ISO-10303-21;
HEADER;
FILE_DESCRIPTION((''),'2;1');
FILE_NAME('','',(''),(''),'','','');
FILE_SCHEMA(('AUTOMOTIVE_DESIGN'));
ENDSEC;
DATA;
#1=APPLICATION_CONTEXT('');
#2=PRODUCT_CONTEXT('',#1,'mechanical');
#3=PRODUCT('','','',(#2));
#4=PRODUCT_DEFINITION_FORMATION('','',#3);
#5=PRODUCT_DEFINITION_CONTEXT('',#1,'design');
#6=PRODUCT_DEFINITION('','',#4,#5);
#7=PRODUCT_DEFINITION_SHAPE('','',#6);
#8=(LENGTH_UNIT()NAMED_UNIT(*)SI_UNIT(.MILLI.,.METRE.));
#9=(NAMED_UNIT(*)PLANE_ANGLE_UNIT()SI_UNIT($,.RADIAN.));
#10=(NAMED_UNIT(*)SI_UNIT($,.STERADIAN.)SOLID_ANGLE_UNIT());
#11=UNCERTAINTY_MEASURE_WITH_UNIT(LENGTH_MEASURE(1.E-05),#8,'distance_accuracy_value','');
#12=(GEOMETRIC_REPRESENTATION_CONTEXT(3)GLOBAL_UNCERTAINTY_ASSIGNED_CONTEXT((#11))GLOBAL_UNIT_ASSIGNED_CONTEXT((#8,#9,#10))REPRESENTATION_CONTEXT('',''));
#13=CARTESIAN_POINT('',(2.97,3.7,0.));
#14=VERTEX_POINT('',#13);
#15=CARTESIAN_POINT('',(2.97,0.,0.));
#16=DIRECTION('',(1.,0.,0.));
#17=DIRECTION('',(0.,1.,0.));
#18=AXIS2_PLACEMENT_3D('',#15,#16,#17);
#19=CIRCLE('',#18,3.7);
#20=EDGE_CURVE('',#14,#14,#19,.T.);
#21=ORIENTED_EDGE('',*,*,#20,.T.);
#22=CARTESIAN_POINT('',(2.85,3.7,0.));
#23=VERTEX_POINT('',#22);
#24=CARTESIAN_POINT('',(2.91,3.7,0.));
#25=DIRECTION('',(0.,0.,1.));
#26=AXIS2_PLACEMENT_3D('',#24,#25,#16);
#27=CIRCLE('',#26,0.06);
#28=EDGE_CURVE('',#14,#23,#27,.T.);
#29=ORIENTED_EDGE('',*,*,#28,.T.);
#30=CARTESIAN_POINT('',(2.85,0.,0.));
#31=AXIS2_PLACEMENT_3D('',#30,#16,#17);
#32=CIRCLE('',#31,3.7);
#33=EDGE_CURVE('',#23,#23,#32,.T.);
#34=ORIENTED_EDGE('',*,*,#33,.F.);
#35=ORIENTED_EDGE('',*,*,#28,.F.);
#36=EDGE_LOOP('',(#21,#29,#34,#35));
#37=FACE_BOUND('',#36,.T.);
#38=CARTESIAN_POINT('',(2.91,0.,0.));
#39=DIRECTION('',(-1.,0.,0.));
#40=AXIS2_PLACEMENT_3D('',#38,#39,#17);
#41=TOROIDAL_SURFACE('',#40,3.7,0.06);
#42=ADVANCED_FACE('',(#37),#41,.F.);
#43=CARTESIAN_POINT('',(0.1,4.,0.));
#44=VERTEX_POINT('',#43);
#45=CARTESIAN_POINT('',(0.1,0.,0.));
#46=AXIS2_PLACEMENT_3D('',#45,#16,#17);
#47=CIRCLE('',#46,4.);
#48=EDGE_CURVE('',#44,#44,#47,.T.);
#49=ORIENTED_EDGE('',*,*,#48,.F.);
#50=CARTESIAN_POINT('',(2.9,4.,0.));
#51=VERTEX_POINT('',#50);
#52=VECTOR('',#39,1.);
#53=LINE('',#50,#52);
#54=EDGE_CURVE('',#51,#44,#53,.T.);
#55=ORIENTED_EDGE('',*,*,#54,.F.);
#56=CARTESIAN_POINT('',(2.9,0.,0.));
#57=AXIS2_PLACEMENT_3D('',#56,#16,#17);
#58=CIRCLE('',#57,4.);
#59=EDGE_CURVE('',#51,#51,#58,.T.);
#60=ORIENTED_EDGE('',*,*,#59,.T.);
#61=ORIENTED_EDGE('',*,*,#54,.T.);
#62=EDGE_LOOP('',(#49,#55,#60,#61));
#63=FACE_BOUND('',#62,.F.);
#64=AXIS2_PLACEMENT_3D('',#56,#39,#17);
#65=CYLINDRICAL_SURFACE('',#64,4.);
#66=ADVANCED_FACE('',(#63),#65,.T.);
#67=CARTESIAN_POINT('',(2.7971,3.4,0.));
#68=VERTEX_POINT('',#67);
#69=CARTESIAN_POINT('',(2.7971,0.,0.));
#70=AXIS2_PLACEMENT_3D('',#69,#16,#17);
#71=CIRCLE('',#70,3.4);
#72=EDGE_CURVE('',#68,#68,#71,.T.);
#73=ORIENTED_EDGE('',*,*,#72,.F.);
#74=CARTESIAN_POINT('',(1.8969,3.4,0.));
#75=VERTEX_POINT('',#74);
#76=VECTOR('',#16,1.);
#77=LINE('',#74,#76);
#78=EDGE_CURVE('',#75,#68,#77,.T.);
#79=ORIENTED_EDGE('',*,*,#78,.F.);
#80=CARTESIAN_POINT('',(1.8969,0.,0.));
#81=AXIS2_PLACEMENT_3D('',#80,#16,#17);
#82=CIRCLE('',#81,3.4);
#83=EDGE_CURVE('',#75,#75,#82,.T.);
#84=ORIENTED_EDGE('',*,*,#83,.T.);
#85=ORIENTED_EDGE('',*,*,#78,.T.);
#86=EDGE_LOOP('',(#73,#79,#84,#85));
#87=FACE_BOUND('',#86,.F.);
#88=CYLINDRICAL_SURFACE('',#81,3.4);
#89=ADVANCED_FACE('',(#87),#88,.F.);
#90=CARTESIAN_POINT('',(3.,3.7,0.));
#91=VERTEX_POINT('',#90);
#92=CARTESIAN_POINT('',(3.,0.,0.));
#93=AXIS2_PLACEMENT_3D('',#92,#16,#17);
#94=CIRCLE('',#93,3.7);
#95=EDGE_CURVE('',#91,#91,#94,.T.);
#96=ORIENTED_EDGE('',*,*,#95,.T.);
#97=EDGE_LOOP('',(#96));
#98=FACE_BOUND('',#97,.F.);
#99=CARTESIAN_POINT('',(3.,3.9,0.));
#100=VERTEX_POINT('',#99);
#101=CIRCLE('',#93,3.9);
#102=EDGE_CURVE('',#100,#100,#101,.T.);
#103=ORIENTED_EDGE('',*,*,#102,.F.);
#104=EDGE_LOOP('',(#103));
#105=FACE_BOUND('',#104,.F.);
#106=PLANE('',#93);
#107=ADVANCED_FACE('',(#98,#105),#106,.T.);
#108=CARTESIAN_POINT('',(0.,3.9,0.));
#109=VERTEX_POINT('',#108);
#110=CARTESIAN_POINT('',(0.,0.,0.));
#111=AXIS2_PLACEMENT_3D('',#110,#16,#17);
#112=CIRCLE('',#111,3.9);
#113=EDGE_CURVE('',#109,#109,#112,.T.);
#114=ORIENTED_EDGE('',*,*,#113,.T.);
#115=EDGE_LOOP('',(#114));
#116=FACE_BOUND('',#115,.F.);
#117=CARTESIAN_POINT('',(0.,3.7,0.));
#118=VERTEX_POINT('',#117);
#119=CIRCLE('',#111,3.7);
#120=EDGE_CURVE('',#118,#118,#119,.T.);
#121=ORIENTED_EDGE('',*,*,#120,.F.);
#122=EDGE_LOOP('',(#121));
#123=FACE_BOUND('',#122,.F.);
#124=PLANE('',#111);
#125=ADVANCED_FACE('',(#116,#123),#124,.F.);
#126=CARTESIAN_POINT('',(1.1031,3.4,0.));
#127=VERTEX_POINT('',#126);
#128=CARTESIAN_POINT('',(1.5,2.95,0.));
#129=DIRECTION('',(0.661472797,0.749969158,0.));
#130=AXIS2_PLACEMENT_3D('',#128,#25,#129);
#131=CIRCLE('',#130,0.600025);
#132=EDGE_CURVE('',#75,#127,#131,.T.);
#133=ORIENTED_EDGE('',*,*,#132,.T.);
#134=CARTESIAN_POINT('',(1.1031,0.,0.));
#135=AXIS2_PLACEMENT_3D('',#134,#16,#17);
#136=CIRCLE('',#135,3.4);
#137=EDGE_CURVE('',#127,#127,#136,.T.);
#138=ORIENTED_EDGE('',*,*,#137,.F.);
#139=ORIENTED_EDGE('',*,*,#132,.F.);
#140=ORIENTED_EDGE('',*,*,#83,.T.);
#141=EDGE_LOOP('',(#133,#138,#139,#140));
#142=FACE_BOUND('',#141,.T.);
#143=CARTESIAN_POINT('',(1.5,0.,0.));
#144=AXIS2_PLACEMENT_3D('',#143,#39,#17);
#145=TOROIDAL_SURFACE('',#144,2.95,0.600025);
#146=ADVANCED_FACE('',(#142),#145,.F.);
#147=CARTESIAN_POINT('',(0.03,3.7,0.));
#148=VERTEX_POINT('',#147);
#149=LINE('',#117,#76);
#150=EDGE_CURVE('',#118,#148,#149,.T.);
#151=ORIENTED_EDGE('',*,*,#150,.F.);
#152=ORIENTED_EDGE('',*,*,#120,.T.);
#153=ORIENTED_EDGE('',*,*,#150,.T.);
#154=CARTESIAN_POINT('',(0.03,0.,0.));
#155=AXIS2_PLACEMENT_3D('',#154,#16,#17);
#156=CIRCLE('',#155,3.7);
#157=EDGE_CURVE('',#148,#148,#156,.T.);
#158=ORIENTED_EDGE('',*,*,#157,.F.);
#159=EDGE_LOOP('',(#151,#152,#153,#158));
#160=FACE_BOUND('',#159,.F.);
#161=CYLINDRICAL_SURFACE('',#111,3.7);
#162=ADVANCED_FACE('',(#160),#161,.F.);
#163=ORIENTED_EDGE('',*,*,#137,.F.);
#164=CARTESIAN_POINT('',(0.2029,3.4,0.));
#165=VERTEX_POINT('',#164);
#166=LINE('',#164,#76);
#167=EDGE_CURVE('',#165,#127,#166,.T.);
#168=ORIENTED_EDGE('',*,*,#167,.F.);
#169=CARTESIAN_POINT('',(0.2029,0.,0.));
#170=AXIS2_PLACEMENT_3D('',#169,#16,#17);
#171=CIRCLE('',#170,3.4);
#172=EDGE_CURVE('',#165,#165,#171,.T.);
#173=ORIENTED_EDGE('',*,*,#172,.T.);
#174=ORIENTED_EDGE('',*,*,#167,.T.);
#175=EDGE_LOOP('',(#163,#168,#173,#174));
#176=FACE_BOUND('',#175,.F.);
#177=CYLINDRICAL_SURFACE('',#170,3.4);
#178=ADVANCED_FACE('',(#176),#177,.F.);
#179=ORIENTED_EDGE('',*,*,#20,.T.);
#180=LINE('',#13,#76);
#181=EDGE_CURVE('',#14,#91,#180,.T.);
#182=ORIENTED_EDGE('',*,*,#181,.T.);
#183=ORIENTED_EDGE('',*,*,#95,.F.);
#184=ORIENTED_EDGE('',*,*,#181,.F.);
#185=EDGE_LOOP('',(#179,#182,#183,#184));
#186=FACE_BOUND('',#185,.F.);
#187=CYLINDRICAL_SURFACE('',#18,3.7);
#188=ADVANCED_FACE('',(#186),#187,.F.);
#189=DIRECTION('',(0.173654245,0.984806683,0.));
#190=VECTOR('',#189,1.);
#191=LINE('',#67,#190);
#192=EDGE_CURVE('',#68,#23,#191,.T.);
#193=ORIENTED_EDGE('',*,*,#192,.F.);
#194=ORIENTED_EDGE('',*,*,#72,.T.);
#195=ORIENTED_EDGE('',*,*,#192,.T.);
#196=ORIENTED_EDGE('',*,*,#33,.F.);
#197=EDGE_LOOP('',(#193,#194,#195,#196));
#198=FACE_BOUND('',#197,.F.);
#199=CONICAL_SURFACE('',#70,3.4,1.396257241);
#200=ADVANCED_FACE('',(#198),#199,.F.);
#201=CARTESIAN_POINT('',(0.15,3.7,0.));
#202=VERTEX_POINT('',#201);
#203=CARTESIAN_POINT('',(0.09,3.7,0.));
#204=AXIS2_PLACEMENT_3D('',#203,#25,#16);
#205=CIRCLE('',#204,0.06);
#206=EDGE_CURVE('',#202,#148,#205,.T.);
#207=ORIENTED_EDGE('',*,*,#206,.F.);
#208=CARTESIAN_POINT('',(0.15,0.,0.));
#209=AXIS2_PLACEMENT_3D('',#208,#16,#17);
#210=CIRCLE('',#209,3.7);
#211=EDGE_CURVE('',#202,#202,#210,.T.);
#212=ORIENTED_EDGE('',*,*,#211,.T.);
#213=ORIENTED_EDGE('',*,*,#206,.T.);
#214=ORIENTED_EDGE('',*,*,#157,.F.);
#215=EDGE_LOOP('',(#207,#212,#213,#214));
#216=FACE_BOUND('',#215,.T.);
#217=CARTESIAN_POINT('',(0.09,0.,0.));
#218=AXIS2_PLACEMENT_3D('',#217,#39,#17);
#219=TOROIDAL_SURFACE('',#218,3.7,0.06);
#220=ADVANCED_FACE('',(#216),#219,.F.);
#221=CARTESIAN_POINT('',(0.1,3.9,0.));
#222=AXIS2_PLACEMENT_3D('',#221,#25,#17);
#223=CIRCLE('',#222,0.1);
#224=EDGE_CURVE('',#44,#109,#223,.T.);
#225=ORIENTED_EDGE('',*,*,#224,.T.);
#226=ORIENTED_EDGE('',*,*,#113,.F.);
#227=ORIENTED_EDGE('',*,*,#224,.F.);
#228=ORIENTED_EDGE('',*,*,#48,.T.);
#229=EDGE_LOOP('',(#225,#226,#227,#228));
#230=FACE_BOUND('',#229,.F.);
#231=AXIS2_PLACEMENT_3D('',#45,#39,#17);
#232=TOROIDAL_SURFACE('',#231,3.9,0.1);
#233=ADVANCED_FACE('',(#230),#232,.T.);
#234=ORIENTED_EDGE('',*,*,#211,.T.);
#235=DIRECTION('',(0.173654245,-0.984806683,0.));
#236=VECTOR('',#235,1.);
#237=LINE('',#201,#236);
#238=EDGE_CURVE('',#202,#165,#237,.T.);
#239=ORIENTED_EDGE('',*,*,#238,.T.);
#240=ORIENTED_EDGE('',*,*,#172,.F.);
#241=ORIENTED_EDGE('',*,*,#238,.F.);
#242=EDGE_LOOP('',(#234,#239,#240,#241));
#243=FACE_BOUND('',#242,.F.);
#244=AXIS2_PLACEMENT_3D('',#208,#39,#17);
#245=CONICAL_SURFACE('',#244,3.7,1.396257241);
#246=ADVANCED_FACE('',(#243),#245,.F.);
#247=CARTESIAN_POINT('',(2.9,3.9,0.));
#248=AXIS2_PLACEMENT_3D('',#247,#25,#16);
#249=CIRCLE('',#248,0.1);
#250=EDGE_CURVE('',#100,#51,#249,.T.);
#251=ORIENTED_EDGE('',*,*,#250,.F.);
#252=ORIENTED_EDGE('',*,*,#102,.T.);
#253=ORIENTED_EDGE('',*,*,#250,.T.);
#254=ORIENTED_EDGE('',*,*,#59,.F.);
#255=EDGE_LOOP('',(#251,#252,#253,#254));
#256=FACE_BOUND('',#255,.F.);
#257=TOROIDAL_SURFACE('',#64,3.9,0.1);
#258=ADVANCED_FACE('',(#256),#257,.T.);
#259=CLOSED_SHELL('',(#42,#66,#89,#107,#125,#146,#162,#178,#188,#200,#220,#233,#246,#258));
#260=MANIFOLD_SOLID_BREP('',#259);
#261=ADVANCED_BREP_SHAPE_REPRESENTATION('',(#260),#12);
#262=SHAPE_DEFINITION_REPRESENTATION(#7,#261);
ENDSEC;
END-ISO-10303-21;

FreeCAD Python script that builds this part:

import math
import FreeCAD as App
import Part
import Sketcher

V = App.Vector
Q = App.Units.Quantity

doc = App.newDocument("Part")
body = doc.addObject("PartDesign::Body", "Body")

# Sketch on XY plane
sketch1 = body.newObject("Sketcher::SketchObject", "Sketch")
sketch1.AttachmentSupport = (doc.getObject("XY_Plane"), [""])
sketch1.MapMode = "FlatFace"
sketch1.addGeometry([
    Part.ArcOfCircle(Part.Circle(V(0.1, 3.9, 0), V(0, 0, 1), 0.1), math.radians(90), math.radians(180)),  # 0
    Part.LineSegment(V(0, 3.9, 0), V(0, 3.7, 0)),  # 1
    Part.LineSegment(V(0, 3.7, 0), V(0.03, 3.7, 0)),  # 2
    Part.ArcOfCircle(Part.Circle(V(0.09, 3.7, 0), V(0, 0, 1), 0.06), math.radians(0), math.radians(180)),  # 3
    Part.LineSegment(V(0.15, 3.7, 0), V(0.203, 3.4, 0)),  # 4
    Part.LineSegment(V(0.203, 3.4, 0), V(1.103, 3.4, 0)),  # 5
    Part.ArcOfCircle(Part.Circle(V(1.5, 2.95, 0), V(0, 0, 1), 0.6), math.radians(49), math.radians(131)),  # 6
    Part.LineSegment(V(1.897, 3.4, 0), V(2.797, 3.4, 0)),  # 7
    Part.LineSegment(V(2.797, 3.4, 0), V(2.85, 3.7, 0)),  # 8
    Part.ArcOfCircle(Part.Circle(V(2.91, 3.7, 0), V(0, 0, 1), 0.06), math.radians(0), math.radians(180)),  # 9
    Part.LineSegment(V(2.97, 3.7, 0), V(3, 3.7, 0)),  # 10
    Part.LineSegment(V(3, 3.7, 0), V(3, 3.9, 0)),  # 11
    Part.ArcOfCircle(Part.Circle(V(2.9, 3.9, 0), V(0, 0, 1), 0.1), math.radians(0), math.radians(90)),  # 12
    Part.LineSegment(V(2.9, 4, 0), V(0.1, 4, 0)),  # 13
], False)
sketch1.addConstraint([
    Sketcher.Constraint("Tangent", 0, 2, 1, 1),
    Sketcher.Constraint("Coincident", 1, 2, 2, 1),
    Sketcher.Constraint("Coincident", 2, 2, 3, 2),
    Sketcher.Constraint("Coincident", 3, 1, 4, 1),
    Sketcher.Constraint("Coincident", 4, 2, 5, 1),
    Sketcher.Constraint("Coincident", 5, 2, 6, 2),
    Sketcher.Constraint("Coincident", 6, 1, 7, 1),
    Sketcher.Constraint("Coincident", 7, 2, 8, 1),
    Sketcher.Constraint("Coincident", 8, 2, 9, 2),
    Sketcher.Constraint("Coincident", 9, 1, 10, 1),
    Sketcher.Constraint("Coincident", 10, 2, 11, 1),
    Sketcher.Constraint("Tangent", 11, 2, 12, 1),
    Sketcher.Constraint("Tangent", 12, 2, 13, 1),
    Sketcher.Constraint("Tangent", 13, 2, 0, 1),
    Sketcher.Constraint("Vertical", 1),
    Sketcher.Constraint("Horizontal", 2),
    Sketcher.Constraint("Horizontal", 5),
    Sketcher.Constraint("Horizontal", 7),
    Sketcher.Constraint("Horizontal", 10),
    Sketcher.Constraint("Vertical", 11),
    Sketcher.Constraint("Horizontal", 13),
    Sketcher.Constraint("Equal", 3, 9),
    Sketcher.Constraint("Equal", 0, 12),
    Sketcher.Constraint("PointOnObject", 0, 2, -2),
    Sketcher.Constraint("Horizontal", 3, 3, 9, 3),
    Sketcher.Constraint("Horizontal", 9, 3, 1, 2),
    Sketcher.Constraint("Horizontal", 2, 2, 3, 1),
    Sketcher.Constraint("Horizontal", 5, 2, 6, 1),
    Sketcher.Constraint("Horizontal", 3, 1, 8, 2),
    Sketcher.Constraint("Horizontal", 8, 2, 9, 1),
    Sketcher.Constraint("Equal", 5, 7),
    Sketcher.Constraint("Equal", 2, 10),
    Sketcher.Constraint("Equal", 4, 8),
    Sketcher.Constraint("Radius", 0, 0.1),
    Sketcher.Constraint("Radius", 6, 0.6),
    Sketcher.Constraint("Angle", 4, Q("-79.9996 deg")),
    Sketcher.Constraint("Radius", 3, 0.06),
    Sketcher.Constraint("DistanceX", 13, 2, 13, 1, 2.8),
    Sketcher.Constraint("DistanceY", 1, 2, 1, 1, 0.2),
    Sketcher.Constraint("DistanceY", -1, 1, 12, 2, 4.0),
    Sketcher.Constraint("DistanceX", 2, 1, 2, 2, 0.03),
    Sketcher.Constraint("DistanceY", -1, 1, 4, 2, 3.4),
    Sketcher.Constraint("DistanceY", -1, 1, 6, 3, 2.95),
])
revolution = body.newObject("PartDesign::Revolution", "Revolution")
revolution.Profile = sketch1
revolution.ReferenceAxis = (sketch1, ["H_Axis"])
revolution.Angle = 360

doc.recompute()
